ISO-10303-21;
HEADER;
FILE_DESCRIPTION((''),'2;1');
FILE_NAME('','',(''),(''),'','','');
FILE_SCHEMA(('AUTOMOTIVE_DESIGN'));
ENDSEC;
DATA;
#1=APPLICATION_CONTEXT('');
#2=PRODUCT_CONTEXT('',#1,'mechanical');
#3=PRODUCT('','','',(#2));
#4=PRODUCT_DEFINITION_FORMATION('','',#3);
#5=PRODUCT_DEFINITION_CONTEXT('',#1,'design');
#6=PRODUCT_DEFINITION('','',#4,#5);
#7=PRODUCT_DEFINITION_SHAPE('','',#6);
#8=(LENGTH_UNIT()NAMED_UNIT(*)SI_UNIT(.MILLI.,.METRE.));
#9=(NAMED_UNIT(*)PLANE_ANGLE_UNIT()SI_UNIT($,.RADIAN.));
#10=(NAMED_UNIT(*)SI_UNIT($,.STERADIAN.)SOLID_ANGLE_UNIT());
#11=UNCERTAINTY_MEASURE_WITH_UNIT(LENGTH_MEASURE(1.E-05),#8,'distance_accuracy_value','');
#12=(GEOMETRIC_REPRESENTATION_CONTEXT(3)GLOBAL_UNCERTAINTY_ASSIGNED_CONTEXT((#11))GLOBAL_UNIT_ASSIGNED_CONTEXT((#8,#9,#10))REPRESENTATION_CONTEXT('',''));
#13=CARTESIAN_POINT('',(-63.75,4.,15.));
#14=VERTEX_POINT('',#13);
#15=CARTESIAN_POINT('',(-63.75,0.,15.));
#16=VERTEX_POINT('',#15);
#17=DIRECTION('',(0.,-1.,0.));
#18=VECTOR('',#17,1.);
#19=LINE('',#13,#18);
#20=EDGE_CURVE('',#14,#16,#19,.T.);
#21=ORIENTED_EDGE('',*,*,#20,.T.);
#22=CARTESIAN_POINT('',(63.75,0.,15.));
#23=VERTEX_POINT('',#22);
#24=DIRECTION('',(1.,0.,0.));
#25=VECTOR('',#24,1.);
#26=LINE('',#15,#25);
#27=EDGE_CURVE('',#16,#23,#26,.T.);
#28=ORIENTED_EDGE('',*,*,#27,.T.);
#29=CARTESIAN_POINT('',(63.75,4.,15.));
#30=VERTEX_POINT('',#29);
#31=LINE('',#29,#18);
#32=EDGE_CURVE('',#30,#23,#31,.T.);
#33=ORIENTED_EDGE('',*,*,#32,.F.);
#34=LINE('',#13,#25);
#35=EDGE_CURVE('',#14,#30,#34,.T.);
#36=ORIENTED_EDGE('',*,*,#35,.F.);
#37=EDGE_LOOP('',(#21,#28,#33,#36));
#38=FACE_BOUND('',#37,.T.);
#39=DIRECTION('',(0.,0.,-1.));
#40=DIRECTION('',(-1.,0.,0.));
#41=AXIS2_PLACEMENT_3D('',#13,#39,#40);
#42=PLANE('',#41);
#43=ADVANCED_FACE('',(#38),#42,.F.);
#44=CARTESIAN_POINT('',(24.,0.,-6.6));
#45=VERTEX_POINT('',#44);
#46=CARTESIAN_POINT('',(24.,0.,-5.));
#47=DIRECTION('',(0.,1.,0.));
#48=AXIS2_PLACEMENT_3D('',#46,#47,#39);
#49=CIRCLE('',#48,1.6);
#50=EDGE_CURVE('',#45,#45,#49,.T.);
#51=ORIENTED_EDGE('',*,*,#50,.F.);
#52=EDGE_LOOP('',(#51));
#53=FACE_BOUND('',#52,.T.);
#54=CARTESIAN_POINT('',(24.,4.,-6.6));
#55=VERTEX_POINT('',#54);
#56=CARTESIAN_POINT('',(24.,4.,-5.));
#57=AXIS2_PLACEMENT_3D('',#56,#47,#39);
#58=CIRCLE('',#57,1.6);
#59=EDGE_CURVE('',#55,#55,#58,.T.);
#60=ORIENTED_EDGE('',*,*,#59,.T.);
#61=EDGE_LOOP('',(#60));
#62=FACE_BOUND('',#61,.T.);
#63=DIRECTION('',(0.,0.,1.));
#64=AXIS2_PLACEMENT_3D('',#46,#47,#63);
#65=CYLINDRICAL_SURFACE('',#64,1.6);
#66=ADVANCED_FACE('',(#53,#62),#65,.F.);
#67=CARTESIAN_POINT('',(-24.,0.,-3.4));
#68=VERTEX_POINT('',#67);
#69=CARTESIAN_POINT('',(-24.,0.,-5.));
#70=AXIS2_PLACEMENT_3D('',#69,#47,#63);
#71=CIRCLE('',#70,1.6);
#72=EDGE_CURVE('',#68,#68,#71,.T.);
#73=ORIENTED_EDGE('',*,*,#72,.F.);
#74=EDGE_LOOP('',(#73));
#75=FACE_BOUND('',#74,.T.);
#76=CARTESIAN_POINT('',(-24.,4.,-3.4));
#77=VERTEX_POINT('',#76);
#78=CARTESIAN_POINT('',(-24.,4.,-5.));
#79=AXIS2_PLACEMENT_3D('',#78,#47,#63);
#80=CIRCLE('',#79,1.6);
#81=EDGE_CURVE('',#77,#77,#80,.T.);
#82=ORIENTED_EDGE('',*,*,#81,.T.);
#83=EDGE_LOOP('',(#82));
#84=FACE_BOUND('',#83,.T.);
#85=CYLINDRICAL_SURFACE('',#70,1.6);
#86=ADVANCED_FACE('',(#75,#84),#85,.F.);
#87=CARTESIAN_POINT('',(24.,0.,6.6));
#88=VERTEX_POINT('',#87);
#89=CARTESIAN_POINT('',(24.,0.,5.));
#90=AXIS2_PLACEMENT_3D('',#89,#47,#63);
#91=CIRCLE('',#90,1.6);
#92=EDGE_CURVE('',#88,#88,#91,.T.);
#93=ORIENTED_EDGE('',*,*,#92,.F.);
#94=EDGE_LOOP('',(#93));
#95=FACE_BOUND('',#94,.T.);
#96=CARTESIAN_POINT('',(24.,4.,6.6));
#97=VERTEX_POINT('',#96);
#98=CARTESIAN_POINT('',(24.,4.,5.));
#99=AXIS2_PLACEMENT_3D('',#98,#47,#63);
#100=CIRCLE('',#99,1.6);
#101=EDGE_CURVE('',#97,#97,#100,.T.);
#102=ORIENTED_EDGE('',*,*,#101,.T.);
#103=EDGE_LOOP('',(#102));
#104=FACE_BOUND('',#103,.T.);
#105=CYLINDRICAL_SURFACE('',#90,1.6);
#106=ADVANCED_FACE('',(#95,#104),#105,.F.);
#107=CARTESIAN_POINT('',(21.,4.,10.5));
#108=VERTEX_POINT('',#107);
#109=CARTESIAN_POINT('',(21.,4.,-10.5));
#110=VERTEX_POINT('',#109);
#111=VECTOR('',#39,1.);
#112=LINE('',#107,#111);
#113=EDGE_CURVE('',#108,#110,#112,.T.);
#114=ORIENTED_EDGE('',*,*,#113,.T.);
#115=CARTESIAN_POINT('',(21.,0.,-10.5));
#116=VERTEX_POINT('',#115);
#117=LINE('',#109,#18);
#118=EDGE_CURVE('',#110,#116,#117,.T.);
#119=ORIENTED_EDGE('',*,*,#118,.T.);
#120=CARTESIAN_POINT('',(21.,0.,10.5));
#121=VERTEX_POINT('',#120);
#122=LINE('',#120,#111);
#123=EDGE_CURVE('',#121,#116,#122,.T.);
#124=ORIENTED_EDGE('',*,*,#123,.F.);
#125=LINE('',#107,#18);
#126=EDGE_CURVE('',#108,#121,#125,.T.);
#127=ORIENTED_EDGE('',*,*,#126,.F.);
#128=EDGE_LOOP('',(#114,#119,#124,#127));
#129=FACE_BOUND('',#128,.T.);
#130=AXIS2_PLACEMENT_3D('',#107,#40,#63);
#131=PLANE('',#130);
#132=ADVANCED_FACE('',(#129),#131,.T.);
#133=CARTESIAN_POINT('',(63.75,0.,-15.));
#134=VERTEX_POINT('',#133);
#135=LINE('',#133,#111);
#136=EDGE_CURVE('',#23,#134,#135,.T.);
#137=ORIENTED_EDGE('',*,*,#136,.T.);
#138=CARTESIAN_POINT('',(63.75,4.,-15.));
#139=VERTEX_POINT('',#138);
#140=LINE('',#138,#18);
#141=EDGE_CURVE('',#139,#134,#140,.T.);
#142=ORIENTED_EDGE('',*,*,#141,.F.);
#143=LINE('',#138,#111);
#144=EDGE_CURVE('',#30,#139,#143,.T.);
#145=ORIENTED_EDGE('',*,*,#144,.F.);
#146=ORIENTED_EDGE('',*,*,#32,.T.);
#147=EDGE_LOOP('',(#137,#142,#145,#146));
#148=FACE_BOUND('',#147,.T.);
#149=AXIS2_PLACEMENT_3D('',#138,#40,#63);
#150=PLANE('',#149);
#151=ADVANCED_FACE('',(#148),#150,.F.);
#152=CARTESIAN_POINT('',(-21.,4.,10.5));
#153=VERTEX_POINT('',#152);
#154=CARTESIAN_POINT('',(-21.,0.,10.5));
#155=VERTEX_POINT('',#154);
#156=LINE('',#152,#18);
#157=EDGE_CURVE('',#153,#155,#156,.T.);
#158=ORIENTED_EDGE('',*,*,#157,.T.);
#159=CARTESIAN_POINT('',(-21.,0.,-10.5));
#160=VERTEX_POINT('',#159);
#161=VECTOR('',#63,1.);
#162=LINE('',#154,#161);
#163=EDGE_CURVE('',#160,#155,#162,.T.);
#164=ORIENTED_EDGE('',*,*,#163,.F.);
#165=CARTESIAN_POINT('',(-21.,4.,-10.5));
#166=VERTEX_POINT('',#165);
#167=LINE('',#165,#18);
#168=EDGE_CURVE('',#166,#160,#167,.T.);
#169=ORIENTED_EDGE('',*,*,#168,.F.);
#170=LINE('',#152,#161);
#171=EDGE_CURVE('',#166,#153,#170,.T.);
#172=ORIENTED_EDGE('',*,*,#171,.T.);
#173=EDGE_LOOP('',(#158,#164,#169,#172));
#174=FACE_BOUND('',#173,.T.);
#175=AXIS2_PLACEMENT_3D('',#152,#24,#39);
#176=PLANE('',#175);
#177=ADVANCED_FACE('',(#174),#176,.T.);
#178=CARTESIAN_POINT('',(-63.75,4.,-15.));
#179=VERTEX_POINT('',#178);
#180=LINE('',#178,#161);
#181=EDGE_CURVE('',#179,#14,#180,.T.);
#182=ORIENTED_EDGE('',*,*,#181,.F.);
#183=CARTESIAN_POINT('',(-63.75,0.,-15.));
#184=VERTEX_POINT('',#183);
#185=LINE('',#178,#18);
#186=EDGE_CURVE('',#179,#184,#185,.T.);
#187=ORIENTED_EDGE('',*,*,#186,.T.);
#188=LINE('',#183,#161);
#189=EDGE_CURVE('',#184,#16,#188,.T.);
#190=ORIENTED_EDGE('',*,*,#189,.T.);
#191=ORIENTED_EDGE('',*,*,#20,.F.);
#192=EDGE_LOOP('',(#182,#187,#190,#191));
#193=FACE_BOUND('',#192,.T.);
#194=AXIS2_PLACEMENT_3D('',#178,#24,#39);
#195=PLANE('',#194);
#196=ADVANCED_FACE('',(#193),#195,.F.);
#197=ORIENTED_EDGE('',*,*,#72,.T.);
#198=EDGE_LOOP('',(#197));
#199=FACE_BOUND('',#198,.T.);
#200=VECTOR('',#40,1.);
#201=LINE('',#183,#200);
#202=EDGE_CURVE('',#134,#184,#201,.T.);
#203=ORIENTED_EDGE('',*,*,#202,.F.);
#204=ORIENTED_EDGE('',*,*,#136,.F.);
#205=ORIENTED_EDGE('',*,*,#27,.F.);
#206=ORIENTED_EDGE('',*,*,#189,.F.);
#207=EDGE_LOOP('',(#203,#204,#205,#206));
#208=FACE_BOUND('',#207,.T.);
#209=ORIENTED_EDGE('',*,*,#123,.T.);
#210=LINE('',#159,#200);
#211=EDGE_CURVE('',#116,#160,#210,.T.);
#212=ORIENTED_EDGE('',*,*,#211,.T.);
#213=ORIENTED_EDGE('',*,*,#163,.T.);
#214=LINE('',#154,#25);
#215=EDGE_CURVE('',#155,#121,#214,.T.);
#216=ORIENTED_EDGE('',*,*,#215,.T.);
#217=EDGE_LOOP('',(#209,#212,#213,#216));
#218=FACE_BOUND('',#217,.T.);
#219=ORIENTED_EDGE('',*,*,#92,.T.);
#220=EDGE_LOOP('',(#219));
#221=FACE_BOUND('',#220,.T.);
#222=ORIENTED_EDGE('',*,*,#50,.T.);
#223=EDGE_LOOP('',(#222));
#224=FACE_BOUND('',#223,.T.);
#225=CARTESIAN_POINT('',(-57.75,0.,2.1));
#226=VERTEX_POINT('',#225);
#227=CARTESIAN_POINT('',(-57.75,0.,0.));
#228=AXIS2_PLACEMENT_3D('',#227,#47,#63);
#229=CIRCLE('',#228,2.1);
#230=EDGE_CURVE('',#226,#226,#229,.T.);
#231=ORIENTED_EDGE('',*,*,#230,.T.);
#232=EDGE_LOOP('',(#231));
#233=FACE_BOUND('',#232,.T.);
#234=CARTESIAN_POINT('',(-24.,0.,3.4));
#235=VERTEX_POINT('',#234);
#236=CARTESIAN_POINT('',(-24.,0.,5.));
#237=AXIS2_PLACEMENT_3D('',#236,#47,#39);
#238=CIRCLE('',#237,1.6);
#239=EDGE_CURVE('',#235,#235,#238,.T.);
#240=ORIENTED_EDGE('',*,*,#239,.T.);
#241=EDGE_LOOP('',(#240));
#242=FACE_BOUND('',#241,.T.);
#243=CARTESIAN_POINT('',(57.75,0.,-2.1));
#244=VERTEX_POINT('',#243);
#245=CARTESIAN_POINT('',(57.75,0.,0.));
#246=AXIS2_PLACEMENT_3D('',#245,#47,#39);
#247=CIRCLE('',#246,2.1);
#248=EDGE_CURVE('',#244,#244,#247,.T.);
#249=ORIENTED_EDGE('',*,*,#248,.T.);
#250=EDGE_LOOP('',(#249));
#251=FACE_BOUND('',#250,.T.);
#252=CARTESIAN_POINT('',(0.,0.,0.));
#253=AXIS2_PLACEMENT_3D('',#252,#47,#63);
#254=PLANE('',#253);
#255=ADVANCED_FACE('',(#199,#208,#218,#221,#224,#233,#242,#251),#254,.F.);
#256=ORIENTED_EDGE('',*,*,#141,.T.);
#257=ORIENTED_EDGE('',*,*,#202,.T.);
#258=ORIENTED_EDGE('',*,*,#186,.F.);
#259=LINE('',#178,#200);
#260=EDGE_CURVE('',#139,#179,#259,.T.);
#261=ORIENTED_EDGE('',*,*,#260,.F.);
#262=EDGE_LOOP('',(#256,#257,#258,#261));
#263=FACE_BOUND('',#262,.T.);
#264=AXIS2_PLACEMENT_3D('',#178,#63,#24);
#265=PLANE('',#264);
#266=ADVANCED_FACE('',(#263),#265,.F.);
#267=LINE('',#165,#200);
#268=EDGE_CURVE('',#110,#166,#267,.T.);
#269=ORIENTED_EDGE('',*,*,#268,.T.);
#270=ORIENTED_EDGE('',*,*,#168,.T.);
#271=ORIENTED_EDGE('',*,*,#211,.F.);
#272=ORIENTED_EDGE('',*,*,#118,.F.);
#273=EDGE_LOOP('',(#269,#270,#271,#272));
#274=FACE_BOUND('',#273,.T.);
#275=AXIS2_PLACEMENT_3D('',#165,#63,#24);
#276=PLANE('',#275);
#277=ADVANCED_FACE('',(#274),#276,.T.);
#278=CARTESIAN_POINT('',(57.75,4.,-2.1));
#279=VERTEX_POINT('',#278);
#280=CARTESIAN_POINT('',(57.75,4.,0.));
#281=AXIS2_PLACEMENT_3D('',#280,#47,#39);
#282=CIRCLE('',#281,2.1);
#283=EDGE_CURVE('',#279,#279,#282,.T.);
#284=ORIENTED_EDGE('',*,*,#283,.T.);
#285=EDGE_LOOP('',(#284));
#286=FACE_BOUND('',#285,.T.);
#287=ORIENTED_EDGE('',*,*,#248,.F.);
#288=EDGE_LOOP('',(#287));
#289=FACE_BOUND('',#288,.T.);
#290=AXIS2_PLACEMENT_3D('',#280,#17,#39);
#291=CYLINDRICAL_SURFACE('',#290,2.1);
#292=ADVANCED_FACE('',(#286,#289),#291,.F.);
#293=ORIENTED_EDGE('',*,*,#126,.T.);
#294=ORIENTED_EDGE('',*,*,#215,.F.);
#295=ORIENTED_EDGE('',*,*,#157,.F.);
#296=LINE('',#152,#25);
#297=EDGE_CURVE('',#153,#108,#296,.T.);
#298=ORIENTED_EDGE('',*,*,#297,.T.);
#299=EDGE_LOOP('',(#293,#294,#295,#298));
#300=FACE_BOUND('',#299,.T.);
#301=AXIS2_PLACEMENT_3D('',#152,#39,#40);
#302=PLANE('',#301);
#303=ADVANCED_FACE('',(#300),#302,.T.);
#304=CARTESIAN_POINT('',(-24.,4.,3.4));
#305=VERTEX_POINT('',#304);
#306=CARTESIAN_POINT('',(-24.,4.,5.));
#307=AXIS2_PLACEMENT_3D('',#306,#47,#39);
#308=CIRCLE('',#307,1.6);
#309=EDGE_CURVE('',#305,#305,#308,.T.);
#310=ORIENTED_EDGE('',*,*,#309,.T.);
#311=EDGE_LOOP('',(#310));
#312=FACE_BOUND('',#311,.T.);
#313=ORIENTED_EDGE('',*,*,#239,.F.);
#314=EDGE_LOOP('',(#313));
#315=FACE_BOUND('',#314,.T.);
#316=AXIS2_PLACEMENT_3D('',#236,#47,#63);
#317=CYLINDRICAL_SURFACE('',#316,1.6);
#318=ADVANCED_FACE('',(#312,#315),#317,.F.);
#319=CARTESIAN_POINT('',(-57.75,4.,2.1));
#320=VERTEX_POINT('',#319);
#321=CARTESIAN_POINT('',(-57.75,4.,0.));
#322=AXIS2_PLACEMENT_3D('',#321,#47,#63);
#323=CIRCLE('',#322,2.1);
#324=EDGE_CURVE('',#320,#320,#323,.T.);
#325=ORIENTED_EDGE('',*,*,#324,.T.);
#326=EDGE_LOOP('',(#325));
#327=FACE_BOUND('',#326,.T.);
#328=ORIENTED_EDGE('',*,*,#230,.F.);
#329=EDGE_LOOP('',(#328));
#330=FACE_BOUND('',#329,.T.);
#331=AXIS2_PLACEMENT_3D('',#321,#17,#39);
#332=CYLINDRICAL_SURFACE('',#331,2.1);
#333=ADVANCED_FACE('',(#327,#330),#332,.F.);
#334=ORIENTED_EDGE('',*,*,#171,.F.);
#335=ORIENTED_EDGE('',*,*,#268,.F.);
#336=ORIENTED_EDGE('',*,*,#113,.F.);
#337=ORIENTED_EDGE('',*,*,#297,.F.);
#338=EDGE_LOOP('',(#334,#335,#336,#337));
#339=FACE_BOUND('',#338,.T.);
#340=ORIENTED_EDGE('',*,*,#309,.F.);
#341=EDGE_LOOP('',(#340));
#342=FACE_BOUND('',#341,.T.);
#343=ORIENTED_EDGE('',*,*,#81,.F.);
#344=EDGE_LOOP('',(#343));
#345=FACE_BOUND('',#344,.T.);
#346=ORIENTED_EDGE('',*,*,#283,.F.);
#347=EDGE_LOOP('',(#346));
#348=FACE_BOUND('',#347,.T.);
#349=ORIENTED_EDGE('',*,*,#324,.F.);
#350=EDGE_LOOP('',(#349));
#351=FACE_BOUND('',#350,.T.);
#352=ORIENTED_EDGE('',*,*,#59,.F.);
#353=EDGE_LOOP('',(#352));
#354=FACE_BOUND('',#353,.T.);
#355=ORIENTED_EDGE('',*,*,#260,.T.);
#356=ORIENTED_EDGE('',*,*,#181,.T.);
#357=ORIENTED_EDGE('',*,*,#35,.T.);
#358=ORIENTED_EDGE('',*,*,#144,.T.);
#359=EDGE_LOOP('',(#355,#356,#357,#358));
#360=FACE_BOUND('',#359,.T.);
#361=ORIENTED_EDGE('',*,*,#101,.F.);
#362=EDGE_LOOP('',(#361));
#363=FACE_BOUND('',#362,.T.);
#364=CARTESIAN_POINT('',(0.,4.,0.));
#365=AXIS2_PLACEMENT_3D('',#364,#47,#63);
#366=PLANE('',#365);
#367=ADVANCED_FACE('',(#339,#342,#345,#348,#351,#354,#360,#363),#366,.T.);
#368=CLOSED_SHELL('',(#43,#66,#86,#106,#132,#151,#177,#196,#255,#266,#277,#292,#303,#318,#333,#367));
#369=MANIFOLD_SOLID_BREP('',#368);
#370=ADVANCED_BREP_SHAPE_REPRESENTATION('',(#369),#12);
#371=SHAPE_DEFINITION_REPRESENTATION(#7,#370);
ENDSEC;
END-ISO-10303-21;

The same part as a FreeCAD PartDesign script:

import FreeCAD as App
import Part
import Sketcher

V = App.Vector

doc = App.newDocument("Part")
params = doc.addObject("Spreadsheet::Sheet", "Params")
for row, (alias, value) in enumerate([
    ("sketch1_diameter", "4.2 mm"),
    ("sketch1_width", "42 mm"),
    ("sketch1_height", "30 mm"),
    ("sketch1_height2", "21 mm"),
    ("sketch1_width2", "127.5 mm"),
    ("pad1_length", "4 mm"),
    ("sketch2_diameter", "3.2 mm"),
], start=1):
    params.set(f"A{row}", alias)
    params.set(f"B{row}", "=" + value)
    params.setAlias(f"B{row}", alias)

body = doc.addObject("PartDesign::Body", "Body")

# Sketch on XZ plane
sketch1 = body.newObject("Sketcher::SketchObject", "Sketch")
sketch1.AttachmentSupport = (doc.getObject("XZ_Plane"), [""])
sketch1.MapMode = "FlatFace"
sketch1.addGeometry([
    Part.LineSegment(V(-63.8, -15, 0), V(-63.8, 15, 0)),  # 0
    Part.LineSegment(V(-63.8, 15, 0), V(63.8, 15, 0)),  # 1
    Part.LineSegment(V(63.8, 15, 0), V(63.8, -15, 0)),  # 2
    Part.LineSegment(V(63.8, -15, 0), V(-63.8, -15, 0)),  # 3
    Part.Circle(V(-57.8, 0, 0), V(0, 0, 1), 2.1),  # 4
    Part.LineSegment(V(21, 10.5, 0), V(-21, 10.5, 0)),  # 5
    Part.LineSegment(V(-21, 10.5, 0), V(-21, -10.5, 0)),  # 6
    Part.LineSegment(V(-21, -10.5, 0), V(21, -10.5, 0)),  # 7
    Part.LineSegment(V(21, -10.5, 0), V(21, 10.5, 0)),  # 8
    Part.Circle(V(57.8, 0, 0), V(0, 0, 1), 2.1),  # 9
], False)
sketch1.addConstraint([
    Sketcher.Constraint("Coincident", 0, 2, 1, 1),
    Sketcher.Constraint("Coincident", 1, 2, 2, 1),
    Sketcher.Constraint("Coincident", 2, 2, 3, 1),
    Sketcher.Constraint("Coincident", 3, 2, 0, 1),
    Sketcher.Constraint("Coincident", 5, 2, 6, 1),
    Sketcher.Constraint("Coincident", 6, 2, 7, 1),
    Sketcher.Constraint("Coincident", 7, 2, 8, 1),
    Sketcher.Constraint("Coincident", 8, 2, 5, 1),
    Sketcher.Constraint("Vertical", 0),
    Sketcher.Constraint("Horizontal", 1),
    Sketcher.Constraint("Vertical", 2),
    Sketcher.Constraint("Horizontal", 3),
    Sketcher.Constraint("Horizontal", 5),
    Sketcher.Constraint("Vertical", 6),
    Sketcher.Constraint("Horizontal", 7),
    Sketcher.Constraint("Vertical", 8),
    Sketcher.Constraint("Equal", 4, 9),
    Sketcher.Constraint("Symmetric", 4, 3, 9, 3, -1, 1),
    Sketcher.Constraint("Symmetric", 0, 2, 2, 2, -1, 1),
    Sketcher.Constraint("Symmetric", 5, 2, 7, 2, -1, 1),
    Sketcher.Constraint("PointOnObject", 4, 3, -1),
    Sketcher.Constraint("Diameter", 4, 4.2),
    Sketcher.Constraint("DistanceX", 5, 2, 5, 1, 42.0),
    Sketcher.Constraint("DistanceY", 0, 1, 0, 2, 30.0),
    Sketcher.Constraint("DistanceY", 6, 2, 6, 1, 21.0),
    Sketcher.Constraint("DistanceX", 1, 1, 1, 2, 127.5),
    Sketcher.Constraint("DistanceX", 0, 2, 4, 3, 6.0),
])
sketch1.setExpression("Constraints[21]", "Params.sketch1_diameter")
sketch1.setExpression("Constraints[22]", "Params.sketch1_width")
sketch1.setExpression("Constraints[23]", "Params.sketch1_height")
sketch1.setExpression("Constraints[24]", "Params.sketch1_height2")
sketch1.setExpression("Constraints[25]", "Params.sketch1_width2")
pad1 = body.newObject("PartDesign::Pad", "Pad")
pad1.Profile = sketch1
pad1.setExpression("Length", "Params.pad1_length")
pad1.Reversed = True

# Sketch on XZ plane
sketch2 = body.newObject("Sketcher::SketchObject", "Sketch001")
sketch2.AttachmentSupport = (doc.getObject("XZ_Plane"), [""])
sketch2.MapMode = "FlatFace"
sketch2.AttachmentOffset = App.Placement(V(0, 0, -4), App.Rotation())
sketch2.addGeometry([
    Part.Circle(V(-24, -5, 0), V(0, 0, 1), 1.6),
    Part.Circle(V(-24, 5, 0), V(0, 0, 1), 1.6),
    Part.Circle(V(24, 5, 0), V(0, 0, 1), 1.6),
    Part.Circle(V(24, -5, 0), V(0, 0, 1), 1.6),
], False)
sketch2.addConstraint([
    Sketcher.Constraint("Equal", 0, 1),
    Sketcher.Constraint("Equal", 1, 2),
    Sketcher.Constraint("Equal", 2, 3),
    Sketcher.Constraint("Symmetric", 0, 3, 2, 3, -1, 1),
    Sketcher.Constraint("Symmetric", 1, 3, 3, 3, -1, 1),
    Sketcher.Constraint("Symmetric", 1, 3, 2, 3, -2),
    Sketcher.Constraint("Diameter", 0, 3.2),
    Sketcher.Constraint("DistanceX", 0, 3, -1, 1, 24.0),
    Sketcher.Constraint("DistanceY", 0, 3, -1, 1, 5.0),
])
sketch2.setExpression("Constraints[6]", "Params.sketch2_diameter")
pocket1 = body.newObject("PartDesign::Pocket", "Pocket")
pocket1.Profile = sketch2
pocket1.Type = "ThroughAll"
pocket1.Reversed = True

doc.recompute()
